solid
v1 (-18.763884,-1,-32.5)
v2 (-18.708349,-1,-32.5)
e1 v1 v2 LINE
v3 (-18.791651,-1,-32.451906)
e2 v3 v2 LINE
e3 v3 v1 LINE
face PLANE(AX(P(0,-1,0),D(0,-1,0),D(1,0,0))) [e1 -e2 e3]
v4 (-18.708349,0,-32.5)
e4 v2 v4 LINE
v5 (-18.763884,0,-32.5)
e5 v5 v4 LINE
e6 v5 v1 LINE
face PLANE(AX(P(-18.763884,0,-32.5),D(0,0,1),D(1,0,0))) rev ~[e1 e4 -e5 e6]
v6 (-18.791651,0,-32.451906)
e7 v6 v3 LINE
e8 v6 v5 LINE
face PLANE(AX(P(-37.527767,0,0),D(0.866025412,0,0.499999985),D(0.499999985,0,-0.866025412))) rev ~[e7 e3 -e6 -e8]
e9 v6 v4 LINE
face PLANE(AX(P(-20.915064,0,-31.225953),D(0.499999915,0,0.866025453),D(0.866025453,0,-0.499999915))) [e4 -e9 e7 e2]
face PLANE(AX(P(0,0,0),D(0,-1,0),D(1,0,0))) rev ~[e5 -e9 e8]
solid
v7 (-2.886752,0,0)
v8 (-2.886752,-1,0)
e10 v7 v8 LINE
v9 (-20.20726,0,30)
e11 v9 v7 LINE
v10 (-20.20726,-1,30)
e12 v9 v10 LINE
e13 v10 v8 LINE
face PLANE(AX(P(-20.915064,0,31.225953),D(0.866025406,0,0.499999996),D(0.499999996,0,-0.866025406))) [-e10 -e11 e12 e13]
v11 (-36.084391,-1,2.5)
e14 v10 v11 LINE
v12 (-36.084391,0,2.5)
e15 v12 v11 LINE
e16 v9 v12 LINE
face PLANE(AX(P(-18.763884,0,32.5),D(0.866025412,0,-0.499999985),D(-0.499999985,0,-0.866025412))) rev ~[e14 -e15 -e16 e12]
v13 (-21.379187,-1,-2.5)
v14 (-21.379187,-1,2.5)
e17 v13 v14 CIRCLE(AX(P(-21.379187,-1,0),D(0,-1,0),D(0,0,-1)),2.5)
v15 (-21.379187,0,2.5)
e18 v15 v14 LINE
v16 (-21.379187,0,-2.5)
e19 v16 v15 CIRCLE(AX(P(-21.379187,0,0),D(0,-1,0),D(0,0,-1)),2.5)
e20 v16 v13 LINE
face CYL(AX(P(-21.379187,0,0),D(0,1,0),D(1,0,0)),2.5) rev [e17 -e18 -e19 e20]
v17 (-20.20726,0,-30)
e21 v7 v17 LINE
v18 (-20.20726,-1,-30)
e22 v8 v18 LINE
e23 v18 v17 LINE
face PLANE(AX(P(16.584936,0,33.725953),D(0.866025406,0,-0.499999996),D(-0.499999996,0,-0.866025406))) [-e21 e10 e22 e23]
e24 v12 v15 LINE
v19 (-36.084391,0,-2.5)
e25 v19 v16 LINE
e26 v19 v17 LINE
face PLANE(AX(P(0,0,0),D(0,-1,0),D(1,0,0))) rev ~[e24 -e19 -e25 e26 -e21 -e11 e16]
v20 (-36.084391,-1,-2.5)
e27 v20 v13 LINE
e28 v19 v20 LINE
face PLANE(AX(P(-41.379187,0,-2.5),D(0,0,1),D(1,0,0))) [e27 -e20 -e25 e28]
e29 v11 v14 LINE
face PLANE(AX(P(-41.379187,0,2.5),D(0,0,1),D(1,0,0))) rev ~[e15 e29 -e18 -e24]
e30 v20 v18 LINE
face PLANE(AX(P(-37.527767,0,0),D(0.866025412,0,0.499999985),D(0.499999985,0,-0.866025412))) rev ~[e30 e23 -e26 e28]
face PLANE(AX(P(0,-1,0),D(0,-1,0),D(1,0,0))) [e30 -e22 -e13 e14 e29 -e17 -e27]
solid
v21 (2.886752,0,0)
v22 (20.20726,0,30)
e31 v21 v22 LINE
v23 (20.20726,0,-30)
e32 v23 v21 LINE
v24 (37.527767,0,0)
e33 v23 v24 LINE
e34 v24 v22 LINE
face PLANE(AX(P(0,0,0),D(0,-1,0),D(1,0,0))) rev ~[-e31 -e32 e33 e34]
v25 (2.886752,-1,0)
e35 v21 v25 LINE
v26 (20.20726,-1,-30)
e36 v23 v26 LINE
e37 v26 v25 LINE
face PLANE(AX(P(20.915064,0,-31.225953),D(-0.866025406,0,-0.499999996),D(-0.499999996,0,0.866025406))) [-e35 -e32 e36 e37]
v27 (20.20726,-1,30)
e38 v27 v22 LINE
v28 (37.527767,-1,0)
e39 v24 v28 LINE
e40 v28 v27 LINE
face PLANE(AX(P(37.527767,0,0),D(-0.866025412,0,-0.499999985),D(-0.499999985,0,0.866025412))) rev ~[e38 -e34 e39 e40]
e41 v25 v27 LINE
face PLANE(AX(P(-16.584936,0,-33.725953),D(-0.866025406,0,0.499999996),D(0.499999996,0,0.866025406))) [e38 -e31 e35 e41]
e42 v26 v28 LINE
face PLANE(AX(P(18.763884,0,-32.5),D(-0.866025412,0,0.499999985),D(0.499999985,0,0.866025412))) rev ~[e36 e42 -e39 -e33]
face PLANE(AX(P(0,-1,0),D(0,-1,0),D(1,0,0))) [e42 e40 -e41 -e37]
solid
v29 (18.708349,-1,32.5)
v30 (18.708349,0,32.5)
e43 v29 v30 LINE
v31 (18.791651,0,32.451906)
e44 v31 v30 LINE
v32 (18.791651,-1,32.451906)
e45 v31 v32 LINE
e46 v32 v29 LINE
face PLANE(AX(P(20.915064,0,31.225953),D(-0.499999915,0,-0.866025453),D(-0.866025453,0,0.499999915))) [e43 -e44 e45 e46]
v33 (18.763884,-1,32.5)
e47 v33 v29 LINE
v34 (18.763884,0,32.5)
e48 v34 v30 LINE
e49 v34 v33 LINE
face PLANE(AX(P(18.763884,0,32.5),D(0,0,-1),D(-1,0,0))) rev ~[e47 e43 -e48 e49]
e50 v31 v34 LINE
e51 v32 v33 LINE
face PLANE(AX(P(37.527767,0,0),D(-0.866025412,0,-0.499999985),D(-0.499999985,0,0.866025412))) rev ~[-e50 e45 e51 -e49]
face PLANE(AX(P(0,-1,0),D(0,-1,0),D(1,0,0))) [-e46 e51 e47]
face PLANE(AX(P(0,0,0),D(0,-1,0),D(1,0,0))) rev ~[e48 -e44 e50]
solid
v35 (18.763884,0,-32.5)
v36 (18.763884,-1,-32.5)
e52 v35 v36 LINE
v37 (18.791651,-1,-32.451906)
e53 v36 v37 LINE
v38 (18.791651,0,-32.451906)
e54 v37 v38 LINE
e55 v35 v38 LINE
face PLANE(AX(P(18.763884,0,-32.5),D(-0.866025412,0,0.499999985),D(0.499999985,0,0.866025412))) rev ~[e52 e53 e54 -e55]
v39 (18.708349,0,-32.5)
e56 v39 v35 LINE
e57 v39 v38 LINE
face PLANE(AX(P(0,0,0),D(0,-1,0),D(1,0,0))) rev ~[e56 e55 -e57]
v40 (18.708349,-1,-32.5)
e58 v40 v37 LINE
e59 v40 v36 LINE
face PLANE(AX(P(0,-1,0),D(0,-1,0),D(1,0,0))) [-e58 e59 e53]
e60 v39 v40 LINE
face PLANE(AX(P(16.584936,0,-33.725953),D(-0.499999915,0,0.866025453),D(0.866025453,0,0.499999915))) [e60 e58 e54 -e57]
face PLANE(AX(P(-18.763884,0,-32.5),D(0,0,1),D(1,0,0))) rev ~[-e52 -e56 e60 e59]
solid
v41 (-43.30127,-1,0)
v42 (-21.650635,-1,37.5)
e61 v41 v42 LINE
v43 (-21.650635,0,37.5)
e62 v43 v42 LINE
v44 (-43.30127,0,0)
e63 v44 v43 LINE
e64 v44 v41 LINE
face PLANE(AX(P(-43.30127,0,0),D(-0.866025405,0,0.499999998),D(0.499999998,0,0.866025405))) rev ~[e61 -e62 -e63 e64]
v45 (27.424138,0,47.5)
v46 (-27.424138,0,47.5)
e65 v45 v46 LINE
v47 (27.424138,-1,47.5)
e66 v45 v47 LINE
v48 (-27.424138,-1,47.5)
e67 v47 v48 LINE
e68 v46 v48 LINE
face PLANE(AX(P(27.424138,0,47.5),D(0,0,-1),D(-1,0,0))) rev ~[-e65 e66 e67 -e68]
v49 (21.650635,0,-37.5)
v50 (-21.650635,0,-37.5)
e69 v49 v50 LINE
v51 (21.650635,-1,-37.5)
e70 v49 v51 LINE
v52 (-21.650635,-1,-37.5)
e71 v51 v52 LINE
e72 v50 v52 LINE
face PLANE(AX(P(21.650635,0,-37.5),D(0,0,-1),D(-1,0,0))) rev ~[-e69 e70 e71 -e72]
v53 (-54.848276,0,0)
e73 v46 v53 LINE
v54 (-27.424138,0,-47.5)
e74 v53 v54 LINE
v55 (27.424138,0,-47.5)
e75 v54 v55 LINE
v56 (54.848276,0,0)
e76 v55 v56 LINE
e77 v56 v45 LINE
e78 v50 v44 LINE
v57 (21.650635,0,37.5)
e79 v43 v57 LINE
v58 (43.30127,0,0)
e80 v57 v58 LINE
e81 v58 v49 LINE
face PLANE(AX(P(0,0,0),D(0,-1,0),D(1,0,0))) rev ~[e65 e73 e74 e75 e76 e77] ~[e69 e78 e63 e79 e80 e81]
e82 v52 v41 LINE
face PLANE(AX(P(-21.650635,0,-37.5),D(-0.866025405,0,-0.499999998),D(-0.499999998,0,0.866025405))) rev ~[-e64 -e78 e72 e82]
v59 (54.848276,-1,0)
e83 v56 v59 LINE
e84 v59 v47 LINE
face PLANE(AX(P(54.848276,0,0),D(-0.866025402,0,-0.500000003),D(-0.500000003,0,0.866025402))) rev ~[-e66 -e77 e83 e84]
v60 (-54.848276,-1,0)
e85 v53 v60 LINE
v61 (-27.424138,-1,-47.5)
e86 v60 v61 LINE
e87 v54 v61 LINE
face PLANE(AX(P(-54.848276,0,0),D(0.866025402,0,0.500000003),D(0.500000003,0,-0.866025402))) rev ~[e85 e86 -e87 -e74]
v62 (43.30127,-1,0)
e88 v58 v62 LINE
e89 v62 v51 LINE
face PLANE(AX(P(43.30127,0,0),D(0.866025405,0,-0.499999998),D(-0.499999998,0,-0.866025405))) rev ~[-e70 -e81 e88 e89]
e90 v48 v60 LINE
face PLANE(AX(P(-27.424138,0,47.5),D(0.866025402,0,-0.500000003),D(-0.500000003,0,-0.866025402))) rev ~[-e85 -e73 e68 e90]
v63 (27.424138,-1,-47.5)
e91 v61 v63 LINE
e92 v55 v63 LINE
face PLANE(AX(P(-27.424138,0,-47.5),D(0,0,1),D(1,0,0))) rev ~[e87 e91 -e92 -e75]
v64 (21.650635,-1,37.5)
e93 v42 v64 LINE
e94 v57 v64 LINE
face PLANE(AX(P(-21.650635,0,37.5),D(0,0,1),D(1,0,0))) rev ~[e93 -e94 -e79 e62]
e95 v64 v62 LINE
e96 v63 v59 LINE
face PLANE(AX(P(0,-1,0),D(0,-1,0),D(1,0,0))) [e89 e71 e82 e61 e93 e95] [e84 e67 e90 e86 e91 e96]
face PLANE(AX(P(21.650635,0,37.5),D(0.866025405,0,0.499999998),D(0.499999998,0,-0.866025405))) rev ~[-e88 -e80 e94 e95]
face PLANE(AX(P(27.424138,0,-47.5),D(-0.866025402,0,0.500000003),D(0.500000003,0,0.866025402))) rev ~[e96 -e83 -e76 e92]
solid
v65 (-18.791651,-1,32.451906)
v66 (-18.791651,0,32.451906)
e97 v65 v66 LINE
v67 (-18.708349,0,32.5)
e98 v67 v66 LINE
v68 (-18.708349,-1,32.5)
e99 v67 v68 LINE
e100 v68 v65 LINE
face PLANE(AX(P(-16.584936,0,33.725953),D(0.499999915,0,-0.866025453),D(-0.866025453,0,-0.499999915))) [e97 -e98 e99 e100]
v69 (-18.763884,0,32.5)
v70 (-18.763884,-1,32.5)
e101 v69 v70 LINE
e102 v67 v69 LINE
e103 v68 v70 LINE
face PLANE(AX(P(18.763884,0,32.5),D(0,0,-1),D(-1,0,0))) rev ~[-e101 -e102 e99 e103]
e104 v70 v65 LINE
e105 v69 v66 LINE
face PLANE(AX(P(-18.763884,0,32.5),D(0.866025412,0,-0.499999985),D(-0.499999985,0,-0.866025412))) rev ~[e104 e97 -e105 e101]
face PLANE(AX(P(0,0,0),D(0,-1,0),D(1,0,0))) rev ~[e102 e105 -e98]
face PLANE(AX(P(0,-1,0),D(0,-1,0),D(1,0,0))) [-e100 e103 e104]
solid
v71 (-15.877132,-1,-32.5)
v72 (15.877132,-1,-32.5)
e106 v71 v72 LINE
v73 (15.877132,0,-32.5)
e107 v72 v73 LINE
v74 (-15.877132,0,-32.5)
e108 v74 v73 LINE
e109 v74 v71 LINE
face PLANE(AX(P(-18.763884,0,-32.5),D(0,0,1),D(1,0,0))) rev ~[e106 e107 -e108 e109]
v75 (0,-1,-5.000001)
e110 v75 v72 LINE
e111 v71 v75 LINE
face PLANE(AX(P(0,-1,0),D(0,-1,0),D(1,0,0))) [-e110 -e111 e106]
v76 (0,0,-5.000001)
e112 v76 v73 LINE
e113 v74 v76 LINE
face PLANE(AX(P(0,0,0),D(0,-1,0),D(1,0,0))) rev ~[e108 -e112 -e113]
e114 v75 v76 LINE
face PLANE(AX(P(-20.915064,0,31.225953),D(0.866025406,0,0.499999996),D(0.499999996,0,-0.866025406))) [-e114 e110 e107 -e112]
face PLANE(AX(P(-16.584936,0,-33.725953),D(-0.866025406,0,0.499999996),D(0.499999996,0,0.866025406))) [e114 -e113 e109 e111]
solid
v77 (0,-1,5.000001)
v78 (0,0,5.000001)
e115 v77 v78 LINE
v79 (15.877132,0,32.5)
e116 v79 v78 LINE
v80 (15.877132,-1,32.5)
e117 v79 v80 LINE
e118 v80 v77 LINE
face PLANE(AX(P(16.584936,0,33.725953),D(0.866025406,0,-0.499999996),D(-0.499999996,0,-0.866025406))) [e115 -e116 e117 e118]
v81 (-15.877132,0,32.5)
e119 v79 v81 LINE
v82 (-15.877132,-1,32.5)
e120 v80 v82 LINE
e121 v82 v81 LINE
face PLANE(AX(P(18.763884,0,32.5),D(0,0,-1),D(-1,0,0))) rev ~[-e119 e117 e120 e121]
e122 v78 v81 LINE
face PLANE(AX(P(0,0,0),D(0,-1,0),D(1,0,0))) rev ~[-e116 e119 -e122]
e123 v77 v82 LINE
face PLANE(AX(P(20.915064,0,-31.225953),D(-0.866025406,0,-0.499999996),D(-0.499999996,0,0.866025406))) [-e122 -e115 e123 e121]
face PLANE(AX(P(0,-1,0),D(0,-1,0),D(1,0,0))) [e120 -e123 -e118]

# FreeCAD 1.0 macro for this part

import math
import FreeCAD as App
import Part
import Sketcher

V = App.Vector
Q = App.Units.Quantity


def add_polygon(sketch, points):
    """Adds a closed chain of lines whose ends are joined by coincident constraints."""
    first, n = sketch.GeometryCount, len(points)
    for a, b in zip(points, points[1:] + points[:1]):
        sketch.addGeometry(Part.LineSegment(App.Vector(*a, 0), App.Vector(*b, 0)), False)
    for i in range(n):
        sketch.addConstraint(Sketcher.Constraint("Coincident", first + i, 2, first + (i + 1) % n, 1))

doc = App.newDocument("Part")
body = doc.addObject("PartDesign::Body", "Body")

# Sketch on XZ plane
sketch1 = body.newObject("Sketcher::SketchObject", "Sketch")
sketch1.AttachmentSupport = (doc.getObject("XZ_Plane"), [""])
sketch1.MapMode = "FlatFace"
add_polygon(sketch1, [(-27.424138, -47.5), (27.424138, -47.5), (54.848276, 0), (27.424138, 47.5), (-27.424138, 47.5), (-54.848276, 0)])  # lines 0-5
add_polygon(sketch1, [(-21.650635, 37.5), (21.650635, 37.5), (43.30127, 0), (21.650635, -37.5), (-21.650635, -37.5), (-43.30127, 0)])  # lines 6-11
sketch1.addConstraint(Sketcher.Constraint("Horizontal", 0))
sketch1.addConstraint(Sketcher.Constraint("Horizontal", 3))
sketch1.addConstraint(Sketcher.Constraint("Horizontal", 6))
sketch1.addConstraint(Sketcher.Constraint("Horizontal", 9))
sketch1.addConstraint(Sketcher.Constraint("Symmetric", 0, 2, 3, 2, -1, 1))
sketch1.addConstraint(Sketcher.Constraint("Symmetric", 1, 2, 4, 2, -1, 1))
sketch1.addConstraint(Sketcher.Constraint("Symmetric", 6, 2, 9, 2, -1, 1))
sketch1.addConstraint(Sketcher.Constraint("Symmetric", 7, 2, 10, 2, -1, 1))
sketch1.addConstraint(Sketcher.Constraint("PointOnObject", 1, 2, -1))
sketch1.addConstraint(Sketcher.Constraint("PointOnObject", 7, 2, -1))
sketch1.addConstraint(Sketcher.Constraint("Parallel", 2, 5))
sketch1.addConstraint(Sketcher.Constraint("Parallel", 5, 7))
sketch1.addConstraint(Sketcher.Constraint("Parallel", 4, 8))
sketch1.addConstraint(Sketcher.Constraint("Parallel", 8, 11))
sketch1.addConstraint(Sketcher.Constraint("Vertical", 0, 2, 2, 2))
sketch1.addConstraint(Sketcher.Constraint("Angle", 1, Q("60 deg")))
sketch1.addConstraint(Sketcher.Constraint("DistanceY", 0, 2, 2, 2, 95.0))
sketch1.addConstraint(Sketcher.Constraint("DistanceY", 6, 2, 2, 2, 10.0))
sketch1.addConstraint(Sketcher.Constraint("DistanceX", 6, 1, 6, 2, 43.30127))
sketch1.addConstraint(Sketcher.Constraint("DistanceX", 0, 1, 0, 2, 54.848276))
pad1 = body.newObject("PartDesign::Pad", "Pad")
pad1.Profile = sketch1
pad1.Length = 1
body2 = doc.addObject("PartDesign::Body", "Body001")
body2.AllowCompound = True

# Sketch on XZ plane
sketch2 = body2.newObject("Sketcher::SketchObject", "Sketch001")
sketch2.AttachmentSupport = (doc.getObject("XZ_Plane001"), [""])
sketch2.MapMode = "FlatFace"
add_polygon(sketch2, [(-18.763884, -32.5), (18.763884, -32.5), (37.527767, 0), (18.763884, 32.5), (-18.763884, 32.5), (-37.527767, 0)])  # lines 0-5
sketch2.addConstraint(Sketcher.Constraint("Horizontal", 0))
sketch2.addConstraint(Sketcher.Constraint("Horizontal", 3))
sketch2.addConstraint(Sketcher.Constraint("Symmetric", 0, 2, 3, 2, -1, 1))
sketch2.addConstraint(Sketcher.Constraint("Symmetric", 1, 2, 4, 2, -1, 1))
sketch2.addConstraint(Sketcher.Constraint("PointOnObject", 1, 2, -1))
sketch2.addConstraint(Sketcher.Constraint("Parallel", 2, 5))
sketch2.addConstraint(Sketcher.Constraint("Vertical", 0, 2, 2, 2))
sketch2.addConstraint(Sketcher.Constraint("Angle", 1, Q("60.000001 deg")))
sketch2.addConstraint(Sketcher.Constraint("DistanceY", 0, 2, 2, 2, 65.0))
sketch2.addConstraint(Sketcher.Constraint("DistanceX", 0, 1, 0, 2, 37.527768))
pad2 = body2.newObject("PartDesign::Pad", "Pad001")
pad2.Profile = sketch2
pad2.Length = 1

# Sketch on XZ plane
sketch3 = body2.newObject("Sketcher::SketchObject", "Sketch002")
sketch3.AttachmentSupport = (doc.getObject("XZ_Plane001"), [""])
sketch3.MapMode = "FlatFace"
add_polygon(sketch3, [(20.915064, 31.225953), (16.584936, 33.725953), (0, 5.000001), (-16.584936, 33.725953), (-20.915064, 31.225953), (-2.886752, 0), (-20.915064, -31.225953), (-16.584936, -33.725953), (0, -5.000001), (16.584936, -33.725953), (20.915064, -31.225953), (2.886752, 0)])  # lines 0-11
sketch3.addGeometry(Part.LineSegment(V(-41.379187, 2.5, 0), V(-41.379187, -2.5, 0)), False)  # 12
sketch3.addGeometry(Part.LineSegment(V(-41.379187, -2.5, 0), V(-21.379187, -2.5, 0)), False)  # 13
sketch3.addGeometry(Part.ArcOfCircle(Part.Circle(V(-21.379187, 0, 0), V(0, 0, 1), 2.5), math.radians(-90), math.radians(90)), False)  # 14
sketch3.addGeometry(Part.LineSegment(V(-21.379187, 2.5, 0), V(-41.379187, 2.5, 0)), False)  # 15
sketch3.addConstraint(Sketcher.Constraint("Coincident", 12, 2, 13, 1))
sketch3.addConstraint(Sketcher.Constraint("Tangent", 13, 2, 14, 1))
sketch3.addConstraint(Sketcher.Constraint("Tangent", 14, 2, 15, 1))
sketch3.addConstraint(Sketcher.Constraint("Coincident", 15, 2, 12, 1))
sketch3.addConstraint(Sketcher.Constraint("Vertical", 12))
sketch3.addConstraint(Sketcher.Constraint("Horizontal", 13))
sketch3.addConstraint(Sketcher.Constraint("Horizontal", 15))
sketch3.addConstraint(Sketcher.Constraint("Symmetric", 0, 2, 6, 2, -1, 1))
sketch3.addConstraint(Sketcher.Constraint("Symmetric", 1, 2, 7, 2, -1, 1))
sketch3.addConstraint(Sketcher.Constraint("Symmetric", 2, 2, 8, 2, -1, 1))
sketch3.addConstraint(Sketcher.Constraint("Symmetric", 3, 2, 9, 2, -1, 1))
sketch3.addConstraint(Sketcher.Constraint("Symmetric", 4, 2, 10, 2, -1, 1))
sketch3.addConstraint(Sketcher.Constraint("Symmetric", 5, 2, 11, 2, -1, 1))
sketch3.addConstraint(Sketcher.Constraint("Symmetric", 0, 2, 2, 2, -2))
sketch3.addConstraint(Sketcher.Constraint("Symmetric", 5, 2, 9, 2, -2))
sketch3.addConstraint(Sketcher.Constraint("PointOnObject", 14, 3, -1))
sketch3.addConstraint(Sketcher.Constraint("PointOnObject", 1, 2, -2))
sketch3.addConstraint(Sketcher.Constraint("PointOnObject", 4, 2, -1))
sketch3.addConstraint(Sketcher.Constraint("Perpendicular", 0, 1))
sketch3.addConstraint(Sketcher.Constraint("Perpendicular", 3, 4))
sketch3.addConstraint(Sketcher.Constraint("Radius", 14, 2.5))
sketch3.addConstraint(Sketcher.Constraint("DistanceX", 13, 1, 13, 2, 20.0))
sketch3.addConstraint(Sketcher.Constraint("Angle", 0, Q("150.000006 deg")))
sketch3.addConstraint(Sketcher.Constraint("Distance", 0, 5.000001))
sketch3.addConstraint(Sketcher.Constraint("DistanceY", -1, 1, 1, 2, 5.000001))
sketch3.addConstraint(Sketcher.Constraint("DistanceX", 3, 2, 0, 2, 37.5))
sketch3.addConstraint(Sketcher.Constraint("DistanceX", 14, 3, 2, 2, 4.794251))
pocket1 = body2.newObject("PartDesign::Pocket", "Pocket")
pocket1.Profile = sketch3
pocket1.Length = 1
pocket1.Reversed = True

doc.recompute()
